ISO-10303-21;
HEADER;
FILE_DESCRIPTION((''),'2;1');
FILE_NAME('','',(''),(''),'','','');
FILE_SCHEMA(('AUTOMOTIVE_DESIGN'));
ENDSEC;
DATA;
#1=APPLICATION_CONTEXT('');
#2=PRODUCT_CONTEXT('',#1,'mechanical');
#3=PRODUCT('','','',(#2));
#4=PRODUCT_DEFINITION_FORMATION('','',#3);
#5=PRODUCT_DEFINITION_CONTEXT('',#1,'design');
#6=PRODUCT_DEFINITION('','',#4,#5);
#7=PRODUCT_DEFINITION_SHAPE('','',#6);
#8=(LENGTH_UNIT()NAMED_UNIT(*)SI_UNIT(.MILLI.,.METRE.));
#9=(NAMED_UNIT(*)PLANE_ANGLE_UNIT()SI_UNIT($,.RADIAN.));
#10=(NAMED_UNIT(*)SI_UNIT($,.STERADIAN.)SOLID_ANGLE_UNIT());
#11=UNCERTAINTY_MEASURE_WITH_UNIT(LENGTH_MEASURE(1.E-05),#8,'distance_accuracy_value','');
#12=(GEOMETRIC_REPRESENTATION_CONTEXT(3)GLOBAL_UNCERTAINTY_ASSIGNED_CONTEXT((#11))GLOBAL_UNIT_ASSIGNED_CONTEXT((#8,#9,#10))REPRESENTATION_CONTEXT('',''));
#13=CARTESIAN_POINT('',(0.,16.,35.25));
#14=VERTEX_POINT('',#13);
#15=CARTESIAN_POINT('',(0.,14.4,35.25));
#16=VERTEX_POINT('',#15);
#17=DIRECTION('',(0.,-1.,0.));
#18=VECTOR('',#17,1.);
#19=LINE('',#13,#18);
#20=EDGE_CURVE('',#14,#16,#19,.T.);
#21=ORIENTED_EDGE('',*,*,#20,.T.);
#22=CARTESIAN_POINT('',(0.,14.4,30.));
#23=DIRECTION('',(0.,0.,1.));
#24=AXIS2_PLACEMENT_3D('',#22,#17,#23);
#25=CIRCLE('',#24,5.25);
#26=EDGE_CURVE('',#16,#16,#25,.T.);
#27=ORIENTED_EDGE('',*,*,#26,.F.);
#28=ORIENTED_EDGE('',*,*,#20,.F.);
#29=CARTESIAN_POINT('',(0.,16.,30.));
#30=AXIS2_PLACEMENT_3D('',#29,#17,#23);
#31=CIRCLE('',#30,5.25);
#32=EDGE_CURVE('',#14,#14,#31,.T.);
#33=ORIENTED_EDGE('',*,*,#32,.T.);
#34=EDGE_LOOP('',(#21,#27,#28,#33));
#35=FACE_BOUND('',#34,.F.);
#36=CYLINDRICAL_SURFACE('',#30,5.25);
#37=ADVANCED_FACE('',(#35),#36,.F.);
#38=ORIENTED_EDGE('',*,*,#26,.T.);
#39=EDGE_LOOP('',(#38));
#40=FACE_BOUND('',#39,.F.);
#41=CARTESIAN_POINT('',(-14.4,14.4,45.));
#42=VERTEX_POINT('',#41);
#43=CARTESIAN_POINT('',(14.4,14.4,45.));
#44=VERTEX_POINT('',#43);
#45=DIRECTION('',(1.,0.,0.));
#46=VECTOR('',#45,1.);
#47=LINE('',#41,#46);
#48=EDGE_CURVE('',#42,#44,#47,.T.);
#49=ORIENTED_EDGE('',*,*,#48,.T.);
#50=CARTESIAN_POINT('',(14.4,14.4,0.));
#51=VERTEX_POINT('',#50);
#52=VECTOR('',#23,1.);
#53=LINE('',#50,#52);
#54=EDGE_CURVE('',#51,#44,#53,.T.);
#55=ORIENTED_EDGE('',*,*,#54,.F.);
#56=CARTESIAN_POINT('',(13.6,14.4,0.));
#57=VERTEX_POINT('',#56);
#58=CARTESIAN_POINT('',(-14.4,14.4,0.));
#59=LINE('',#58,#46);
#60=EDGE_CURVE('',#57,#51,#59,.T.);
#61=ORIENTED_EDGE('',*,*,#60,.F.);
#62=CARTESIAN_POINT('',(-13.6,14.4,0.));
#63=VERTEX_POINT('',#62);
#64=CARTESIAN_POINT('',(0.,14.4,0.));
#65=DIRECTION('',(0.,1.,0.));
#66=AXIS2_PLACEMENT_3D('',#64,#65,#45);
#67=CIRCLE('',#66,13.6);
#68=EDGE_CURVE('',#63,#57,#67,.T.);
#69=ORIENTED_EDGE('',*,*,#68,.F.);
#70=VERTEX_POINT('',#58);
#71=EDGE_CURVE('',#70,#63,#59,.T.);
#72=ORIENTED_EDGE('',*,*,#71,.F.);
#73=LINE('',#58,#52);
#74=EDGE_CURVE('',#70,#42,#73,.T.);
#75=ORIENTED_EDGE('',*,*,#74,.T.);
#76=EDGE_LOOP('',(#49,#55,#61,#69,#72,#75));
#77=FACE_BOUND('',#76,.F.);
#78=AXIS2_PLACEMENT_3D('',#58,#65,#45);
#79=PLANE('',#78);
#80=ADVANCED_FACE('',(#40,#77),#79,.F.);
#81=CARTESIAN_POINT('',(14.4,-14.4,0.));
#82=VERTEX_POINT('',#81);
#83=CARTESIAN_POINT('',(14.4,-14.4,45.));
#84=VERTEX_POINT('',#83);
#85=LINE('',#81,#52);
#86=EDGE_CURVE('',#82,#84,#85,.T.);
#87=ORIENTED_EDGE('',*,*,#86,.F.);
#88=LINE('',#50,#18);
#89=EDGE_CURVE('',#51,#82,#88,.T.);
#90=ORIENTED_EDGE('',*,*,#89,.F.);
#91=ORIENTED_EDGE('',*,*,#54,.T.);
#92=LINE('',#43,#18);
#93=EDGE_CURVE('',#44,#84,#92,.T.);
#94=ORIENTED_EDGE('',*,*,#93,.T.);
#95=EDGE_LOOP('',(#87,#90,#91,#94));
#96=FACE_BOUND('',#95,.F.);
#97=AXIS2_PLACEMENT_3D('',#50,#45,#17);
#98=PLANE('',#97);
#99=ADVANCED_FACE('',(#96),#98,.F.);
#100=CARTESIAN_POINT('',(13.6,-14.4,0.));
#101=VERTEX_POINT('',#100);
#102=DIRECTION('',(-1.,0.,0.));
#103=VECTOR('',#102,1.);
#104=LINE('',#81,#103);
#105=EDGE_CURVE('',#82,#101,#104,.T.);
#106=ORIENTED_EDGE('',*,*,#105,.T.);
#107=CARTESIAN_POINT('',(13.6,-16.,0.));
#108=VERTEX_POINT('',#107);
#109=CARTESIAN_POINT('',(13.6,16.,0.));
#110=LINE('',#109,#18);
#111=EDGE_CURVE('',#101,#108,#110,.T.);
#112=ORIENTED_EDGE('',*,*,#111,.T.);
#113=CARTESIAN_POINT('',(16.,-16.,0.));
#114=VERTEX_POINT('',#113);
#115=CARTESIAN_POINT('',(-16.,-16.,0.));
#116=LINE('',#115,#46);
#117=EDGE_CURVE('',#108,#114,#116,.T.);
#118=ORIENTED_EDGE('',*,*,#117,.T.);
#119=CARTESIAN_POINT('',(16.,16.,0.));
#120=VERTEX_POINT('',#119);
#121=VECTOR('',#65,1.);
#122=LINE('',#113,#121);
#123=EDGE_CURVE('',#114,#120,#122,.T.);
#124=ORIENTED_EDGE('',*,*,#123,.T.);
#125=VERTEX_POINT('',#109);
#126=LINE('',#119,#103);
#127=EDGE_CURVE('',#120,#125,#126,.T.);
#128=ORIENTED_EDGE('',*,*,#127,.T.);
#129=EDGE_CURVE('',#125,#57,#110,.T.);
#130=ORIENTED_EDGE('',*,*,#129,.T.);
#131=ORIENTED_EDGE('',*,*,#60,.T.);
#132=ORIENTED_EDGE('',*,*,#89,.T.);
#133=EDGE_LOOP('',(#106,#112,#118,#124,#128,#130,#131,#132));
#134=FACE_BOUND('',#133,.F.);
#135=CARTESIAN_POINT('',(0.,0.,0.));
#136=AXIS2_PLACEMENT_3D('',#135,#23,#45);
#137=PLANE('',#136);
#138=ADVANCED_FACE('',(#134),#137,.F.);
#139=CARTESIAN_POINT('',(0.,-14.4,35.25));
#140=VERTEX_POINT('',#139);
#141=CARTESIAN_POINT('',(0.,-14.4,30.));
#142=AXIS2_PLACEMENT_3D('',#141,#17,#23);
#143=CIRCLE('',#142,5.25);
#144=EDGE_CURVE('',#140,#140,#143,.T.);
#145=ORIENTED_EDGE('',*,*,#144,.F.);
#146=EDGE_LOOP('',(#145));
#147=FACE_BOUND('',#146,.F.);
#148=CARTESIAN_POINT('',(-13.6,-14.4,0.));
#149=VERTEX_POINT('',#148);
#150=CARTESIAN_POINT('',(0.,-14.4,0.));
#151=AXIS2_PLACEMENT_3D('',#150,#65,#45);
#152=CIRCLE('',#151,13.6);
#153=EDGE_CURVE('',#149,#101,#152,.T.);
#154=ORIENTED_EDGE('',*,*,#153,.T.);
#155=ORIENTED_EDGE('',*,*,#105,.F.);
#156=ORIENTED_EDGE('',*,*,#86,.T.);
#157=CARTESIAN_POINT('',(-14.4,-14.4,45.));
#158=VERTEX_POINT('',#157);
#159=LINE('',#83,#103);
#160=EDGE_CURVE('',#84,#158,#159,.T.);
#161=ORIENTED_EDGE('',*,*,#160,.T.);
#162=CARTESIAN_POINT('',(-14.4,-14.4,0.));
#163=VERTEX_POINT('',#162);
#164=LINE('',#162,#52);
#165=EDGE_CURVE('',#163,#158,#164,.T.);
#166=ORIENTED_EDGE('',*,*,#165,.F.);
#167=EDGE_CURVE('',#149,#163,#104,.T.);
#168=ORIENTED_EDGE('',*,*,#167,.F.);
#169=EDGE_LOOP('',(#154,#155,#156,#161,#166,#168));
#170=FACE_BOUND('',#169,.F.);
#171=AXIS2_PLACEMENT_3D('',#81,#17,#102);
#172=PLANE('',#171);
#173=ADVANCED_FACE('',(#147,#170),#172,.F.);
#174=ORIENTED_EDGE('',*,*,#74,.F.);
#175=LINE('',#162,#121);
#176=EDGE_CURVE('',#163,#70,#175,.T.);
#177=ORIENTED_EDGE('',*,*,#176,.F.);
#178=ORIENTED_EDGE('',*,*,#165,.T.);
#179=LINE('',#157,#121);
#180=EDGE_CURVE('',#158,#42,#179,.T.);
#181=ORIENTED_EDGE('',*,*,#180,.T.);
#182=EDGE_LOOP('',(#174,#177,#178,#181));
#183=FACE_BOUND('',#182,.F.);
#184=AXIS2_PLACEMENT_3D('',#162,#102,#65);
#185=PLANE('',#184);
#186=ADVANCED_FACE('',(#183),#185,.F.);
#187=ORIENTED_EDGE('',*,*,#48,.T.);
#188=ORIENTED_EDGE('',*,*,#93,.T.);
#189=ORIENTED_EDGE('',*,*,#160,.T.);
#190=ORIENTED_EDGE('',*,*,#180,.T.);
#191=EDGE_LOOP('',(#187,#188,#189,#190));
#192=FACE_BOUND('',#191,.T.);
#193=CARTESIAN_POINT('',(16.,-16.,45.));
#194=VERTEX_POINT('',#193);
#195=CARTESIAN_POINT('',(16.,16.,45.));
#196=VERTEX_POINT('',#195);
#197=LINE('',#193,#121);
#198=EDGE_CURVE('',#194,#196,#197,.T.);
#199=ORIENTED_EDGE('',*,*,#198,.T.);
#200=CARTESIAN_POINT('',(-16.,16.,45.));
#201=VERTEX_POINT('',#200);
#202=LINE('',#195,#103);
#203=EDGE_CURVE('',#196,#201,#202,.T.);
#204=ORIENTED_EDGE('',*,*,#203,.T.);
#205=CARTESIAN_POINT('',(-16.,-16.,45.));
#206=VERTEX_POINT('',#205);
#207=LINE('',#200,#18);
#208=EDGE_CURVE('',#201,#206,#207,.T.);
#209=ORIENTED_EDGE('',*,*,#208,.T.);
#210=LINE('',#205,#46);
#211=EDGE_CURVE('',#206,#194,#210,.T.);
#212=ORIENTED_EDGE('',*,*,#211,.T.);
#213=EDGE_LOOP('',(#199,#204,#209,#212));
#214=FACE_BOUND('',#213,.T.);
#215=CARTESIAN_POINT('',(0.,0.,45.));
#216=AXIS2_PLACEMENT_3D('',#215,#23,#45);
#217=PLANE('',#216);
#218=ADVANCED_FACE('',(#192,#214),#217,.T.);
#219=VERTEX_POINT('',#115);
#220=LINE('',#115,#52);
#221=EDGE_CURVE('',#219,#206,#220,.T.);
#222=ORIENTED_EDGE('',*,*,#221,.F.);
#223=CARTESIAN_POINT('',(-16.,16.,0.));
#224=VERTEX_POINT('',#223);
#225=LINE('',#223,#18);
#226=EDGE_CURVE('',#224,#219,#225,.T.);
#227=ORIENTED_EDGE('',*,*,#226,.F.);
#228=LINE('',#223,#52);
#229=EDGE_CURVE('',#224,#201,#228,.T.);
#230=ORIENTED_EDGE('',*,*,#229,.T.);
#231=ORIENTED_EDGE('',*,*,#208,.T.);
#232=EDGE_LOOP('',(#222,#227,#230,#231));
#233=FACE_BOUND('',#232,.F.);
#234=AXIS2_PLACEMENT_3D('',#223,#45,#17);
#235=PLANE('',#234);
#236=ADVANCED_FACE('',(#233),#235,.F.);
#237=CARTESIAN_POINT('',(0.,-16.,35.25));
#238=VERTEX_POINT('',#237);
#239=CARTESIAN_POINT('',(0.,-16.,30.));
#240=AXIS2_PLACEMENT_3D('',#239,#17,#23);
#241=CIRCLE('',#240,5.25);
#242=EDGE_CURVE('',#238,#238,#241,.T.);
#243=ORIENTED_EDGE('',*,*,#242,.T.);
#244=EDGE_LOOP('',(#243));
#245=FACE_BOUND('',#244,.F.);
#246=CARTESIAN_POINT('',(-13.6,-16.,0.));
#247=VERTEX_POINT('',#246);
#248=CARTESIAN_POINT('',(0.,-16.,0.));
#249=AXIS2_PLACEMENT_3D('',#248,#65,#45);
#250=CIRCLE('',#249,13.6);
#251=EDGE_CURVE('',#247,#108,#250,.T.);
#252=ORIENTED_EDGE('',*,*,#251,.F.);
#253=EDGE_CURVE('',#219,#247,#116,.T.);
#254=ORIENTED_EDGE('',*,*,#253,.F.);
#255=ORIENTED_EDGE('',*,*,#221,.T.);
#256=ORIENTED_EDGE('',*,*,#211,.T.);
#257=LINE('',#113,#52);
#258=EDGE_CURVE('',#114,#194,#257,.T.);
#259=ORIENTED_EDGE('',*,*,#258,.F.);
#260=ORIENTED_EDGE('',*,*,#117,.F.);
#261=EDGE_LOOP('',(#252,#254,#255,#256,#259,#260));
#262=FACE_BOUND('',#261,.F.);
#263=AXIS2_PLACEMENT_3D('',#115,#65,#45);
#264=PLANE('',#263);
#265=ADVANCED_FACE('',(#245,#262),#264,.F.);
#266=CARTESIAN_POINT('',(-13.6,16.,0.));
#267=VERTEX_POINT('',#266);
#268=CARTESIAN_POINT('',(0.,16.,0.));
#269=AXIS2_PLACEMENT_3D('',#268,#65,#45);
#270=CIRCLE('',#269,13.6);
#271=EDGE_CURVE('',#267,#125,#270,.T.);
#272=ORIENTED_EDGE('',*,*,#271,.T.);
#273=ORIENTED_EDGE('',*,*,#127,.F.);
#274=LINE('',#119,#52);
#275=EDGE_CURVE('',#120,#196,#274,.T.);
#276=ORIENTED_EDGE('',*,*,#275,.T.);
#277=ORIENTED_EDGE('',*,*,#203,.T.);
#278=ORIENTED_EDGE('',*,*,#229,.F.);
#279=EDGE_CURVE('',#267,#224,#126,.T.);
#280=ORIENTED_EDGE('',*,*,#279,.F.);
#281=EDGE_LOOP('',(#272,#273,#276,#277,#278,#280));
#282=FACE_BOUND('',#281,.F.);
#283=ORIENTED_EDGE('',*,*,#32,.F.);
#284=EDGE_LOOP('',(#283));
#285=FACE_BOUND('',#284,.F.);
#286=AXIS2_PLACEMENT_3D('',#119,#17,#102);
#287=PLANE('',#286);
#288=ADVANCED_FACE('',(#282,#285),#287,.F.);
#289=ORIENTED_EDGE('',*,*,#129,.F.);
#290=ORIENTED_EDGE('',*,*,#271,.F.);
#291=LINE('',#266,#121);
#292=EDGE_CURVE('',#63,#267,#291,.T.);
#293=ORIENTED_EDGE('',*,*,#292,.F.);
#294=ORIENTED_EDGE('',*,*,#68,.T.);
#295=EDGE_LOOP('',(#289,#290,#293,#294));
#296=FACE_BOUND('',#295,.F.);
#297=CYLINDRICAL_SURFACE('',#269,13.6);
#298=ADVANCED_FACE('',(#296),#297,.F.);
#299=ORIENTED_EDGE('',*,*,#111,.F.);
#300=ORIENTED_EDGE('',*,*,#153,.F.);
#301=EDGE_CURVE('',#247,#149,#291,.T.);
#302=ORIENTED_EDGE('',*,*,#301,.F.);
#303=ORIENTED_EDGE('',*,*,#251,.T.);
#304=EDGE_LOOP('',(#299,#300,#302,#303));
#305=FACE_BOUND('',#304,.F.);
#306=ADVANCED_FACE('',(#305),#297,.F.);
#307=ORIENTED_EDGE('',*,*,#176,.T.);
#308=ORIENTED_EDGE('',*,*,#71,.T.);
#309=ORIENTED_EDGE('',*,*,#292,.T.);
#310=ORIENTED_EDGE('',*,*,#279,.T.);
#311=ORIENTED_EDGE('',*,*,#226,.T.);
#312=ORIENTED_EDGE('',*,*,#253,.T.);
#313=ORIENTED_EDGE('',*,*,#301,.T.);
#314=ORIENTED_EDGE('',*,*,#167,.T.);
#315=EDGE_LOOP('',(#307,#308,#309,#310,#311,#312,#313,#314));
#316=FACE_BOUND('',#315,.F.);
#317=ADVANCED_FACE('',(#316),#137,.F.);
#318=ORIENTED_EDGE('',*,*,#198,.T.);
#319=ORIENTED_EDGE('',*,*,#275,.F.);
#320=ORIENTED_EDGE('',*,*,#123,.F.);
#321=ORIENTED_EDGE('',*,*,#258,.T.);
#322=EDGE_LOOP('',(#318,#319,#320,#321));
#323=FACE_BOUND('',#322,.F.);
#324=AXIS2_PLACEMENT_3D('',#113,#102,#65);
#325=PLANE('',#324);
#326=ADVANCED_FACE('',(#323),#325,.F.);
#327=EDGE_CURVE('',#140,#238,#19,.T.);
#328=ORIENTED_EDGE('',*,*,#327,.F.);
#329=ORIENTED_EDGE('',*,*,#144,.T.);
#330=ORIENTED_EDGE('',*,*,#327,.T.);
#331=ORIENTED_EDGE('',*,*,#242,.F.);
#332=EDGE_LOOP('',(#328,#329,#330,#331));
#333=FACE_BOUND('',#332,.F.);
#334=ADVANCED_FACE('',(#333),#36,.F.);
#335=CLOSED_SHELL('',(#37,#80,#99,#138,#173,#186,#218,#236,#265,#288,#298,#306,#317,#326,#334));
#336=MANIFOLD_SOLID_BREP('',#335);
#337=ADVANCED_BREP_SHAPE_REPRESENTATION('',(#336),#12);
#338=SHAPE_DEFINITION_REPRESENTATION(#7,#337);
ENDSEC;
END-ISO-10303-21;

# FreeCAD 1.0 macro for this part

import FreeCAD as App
import Part
import Sketcher
Q = App.Units.Quantity

doc = App.newDocument("Part")
body = doc.addObject("PartDesign::Body", "Body")

# Sketch on XY plane
sketch1 = body.newObject("Sketcher::SketchObject", "Sketch")
sketch1.AttachmentSupport = (doc.getObject("XY_Plane"), [""])
sketch1.MapMode = "FlatFace"
sketch1.addGeometry([
    Part.LineSegment(App.Vector(-16, 16, 0), App.Vector(-16, -16, 0)),  # 0
    Part.LineSegment(App.Vector(-16, -16, 0), App.Vector(16, -16, 0)),  # 1
    Part.LineSegment(App.Vector(16, -16, 0), App.Vector(16, 16, 0)),  # 2
    Part.LineSegment(App.Vector(16, 16, 0), App.Vector(-16, 16, 0)),  # 3
    Part.LineSegment(App.Vector(-14.4, -14.4, 0), App.Vector(-14.4, 14.4, 0)),  # 4
    Part.LineSegment(App.Vector(-14.4, 14.4, 0), App.Vector(14.4, 14.4, 0)),  # 5
    Part.LineSegment(App.Vector(14.4, 14.4, 0), App.Vector(14.4, -14.4, 0)),  # 6
    Part.LineSegment(App.Vector(14.4, -14.4, 0), App.Vector(-14.4, -14.4, 0)),  # 7
], False)
sketch1.addConstraint([
    Sketcher.Constraint("Coincident", 0, 2, 1, 1),
    Sketcher.Constraint("Coincident", 1, 2, 2, 1),
    Sketcher.Constraint("Coincident", 2, 2, 3, 1),
    Sketcher.Constraint("Coincident", 3, 2, 0, 1),
    Sketcher.Constraint("Coincident", 4, 2, 5, 1),
    Sketcher.Constraint("Coincident", 5, 2, 6, 1),
    Sketcher.Constraint("Coincident", 6, 2, 7, 1),
    Sketcher.Constraint("Coincident", 7, 2, 4, 1),
    Sketcher.Constraint("Vertical", 0),
    Sketcher.Constraint("Horizontal", 1),
    Sketcher.Constraint("Vertical", 2),
    Sketcher.Constraint("Horizontal", 3),
    Sketcher.Constraint("Vertical", 4),
    Sketcher.Constraint("Horizontal", 5),
    Sketcher.Constraint("Vertical", 6),
    Sketcher.Constraint("Horizontal", 7),
    Sketcher.Constraint("Symmetric", 0, 2, 2, 2, -1, 1),
    Sketcher.Constraint("Symmetric", 4, 2, 6, 2, -1, 1),
    Sketcher.Constraint("Equal", 3, 0),
    Sketcher.Constraint("Equal", 7, 4),
    Sketcher.Constraint("DistanceX", 1, 1, 1, 2, Q("32 mm")),
    Sketcher.Constraint("DistanceX", 3, 2, 4, 2, Q("1.6 mm")),
])
pad1 = body.newObject("PartDesign::Pad", "Pad")
pad1.Profile = sketch1
pad1.Length = 45

# Sketch on XZ plane
sketch2 = body.newObject("Sketcher::SketchObject", "Sketch001")
sketch2.AttachmentSupport = (doc.getObject("XZ_Plane"), [""])
sketch2.MapMode = "FlatFace"
sketch2.AttachmentOffset = App.Placement(App.Vector(0, 0, -16), App.Rotation())
sketch2.addGeometry(Part.Circle(App.Vector(0, 0, 0), App.Vector(0, 0, 1), 13.6), False)
sketch2.addConstraint([
    Sketcher.Constraint("Coincident", 0, 3, -1, 1),
    Sketcher.Constraint("Diameter", 0, Q("27.2 mm")),
])
pocket1 = body.newObject("PartDesign::Pocket", "Pocket")
pocket1.Profile = sketch2
pocket1.Length = 32
pocket1.Reversed = True

# Sketch on XZ plane
sketch3 = body.newObject("Sketcher::SketchObject", "Sketch002")
sketch3.AttachmentSupport = (doc.getObject("XZ_Plane"), [""])
sketch3.MapMode = "FlatFace"
sketch3.AttachmentOffset = App.Placement(App.Vector(0, 0, -16), App.Rotation())
sketch3.addGeometry(Part.Circle(App.Vector(0, 30, 0), App.Vector(0, 0, 1), 5.25), False)
sketch3.addConstraint([
    Sketcher.Constraint("PointOnObject", 0, 3, -2),
    Sketcher.Constraint("Diameter", 0, Q("10.5 mm")),
    Sketcher.Constraint("DistanceY", -1, 1, 0, 3, Q("30 mm")),
])
doc.recompute()
hole = body.newObject("PartDesign::Hole", "Hole")
hole.Profile = sketch3
hole.ThreadType = "None"
hole.Diameter = 10.5
hole.DepthType = "ThroughAll"
hole.Reversed = True

doc.recompute()
